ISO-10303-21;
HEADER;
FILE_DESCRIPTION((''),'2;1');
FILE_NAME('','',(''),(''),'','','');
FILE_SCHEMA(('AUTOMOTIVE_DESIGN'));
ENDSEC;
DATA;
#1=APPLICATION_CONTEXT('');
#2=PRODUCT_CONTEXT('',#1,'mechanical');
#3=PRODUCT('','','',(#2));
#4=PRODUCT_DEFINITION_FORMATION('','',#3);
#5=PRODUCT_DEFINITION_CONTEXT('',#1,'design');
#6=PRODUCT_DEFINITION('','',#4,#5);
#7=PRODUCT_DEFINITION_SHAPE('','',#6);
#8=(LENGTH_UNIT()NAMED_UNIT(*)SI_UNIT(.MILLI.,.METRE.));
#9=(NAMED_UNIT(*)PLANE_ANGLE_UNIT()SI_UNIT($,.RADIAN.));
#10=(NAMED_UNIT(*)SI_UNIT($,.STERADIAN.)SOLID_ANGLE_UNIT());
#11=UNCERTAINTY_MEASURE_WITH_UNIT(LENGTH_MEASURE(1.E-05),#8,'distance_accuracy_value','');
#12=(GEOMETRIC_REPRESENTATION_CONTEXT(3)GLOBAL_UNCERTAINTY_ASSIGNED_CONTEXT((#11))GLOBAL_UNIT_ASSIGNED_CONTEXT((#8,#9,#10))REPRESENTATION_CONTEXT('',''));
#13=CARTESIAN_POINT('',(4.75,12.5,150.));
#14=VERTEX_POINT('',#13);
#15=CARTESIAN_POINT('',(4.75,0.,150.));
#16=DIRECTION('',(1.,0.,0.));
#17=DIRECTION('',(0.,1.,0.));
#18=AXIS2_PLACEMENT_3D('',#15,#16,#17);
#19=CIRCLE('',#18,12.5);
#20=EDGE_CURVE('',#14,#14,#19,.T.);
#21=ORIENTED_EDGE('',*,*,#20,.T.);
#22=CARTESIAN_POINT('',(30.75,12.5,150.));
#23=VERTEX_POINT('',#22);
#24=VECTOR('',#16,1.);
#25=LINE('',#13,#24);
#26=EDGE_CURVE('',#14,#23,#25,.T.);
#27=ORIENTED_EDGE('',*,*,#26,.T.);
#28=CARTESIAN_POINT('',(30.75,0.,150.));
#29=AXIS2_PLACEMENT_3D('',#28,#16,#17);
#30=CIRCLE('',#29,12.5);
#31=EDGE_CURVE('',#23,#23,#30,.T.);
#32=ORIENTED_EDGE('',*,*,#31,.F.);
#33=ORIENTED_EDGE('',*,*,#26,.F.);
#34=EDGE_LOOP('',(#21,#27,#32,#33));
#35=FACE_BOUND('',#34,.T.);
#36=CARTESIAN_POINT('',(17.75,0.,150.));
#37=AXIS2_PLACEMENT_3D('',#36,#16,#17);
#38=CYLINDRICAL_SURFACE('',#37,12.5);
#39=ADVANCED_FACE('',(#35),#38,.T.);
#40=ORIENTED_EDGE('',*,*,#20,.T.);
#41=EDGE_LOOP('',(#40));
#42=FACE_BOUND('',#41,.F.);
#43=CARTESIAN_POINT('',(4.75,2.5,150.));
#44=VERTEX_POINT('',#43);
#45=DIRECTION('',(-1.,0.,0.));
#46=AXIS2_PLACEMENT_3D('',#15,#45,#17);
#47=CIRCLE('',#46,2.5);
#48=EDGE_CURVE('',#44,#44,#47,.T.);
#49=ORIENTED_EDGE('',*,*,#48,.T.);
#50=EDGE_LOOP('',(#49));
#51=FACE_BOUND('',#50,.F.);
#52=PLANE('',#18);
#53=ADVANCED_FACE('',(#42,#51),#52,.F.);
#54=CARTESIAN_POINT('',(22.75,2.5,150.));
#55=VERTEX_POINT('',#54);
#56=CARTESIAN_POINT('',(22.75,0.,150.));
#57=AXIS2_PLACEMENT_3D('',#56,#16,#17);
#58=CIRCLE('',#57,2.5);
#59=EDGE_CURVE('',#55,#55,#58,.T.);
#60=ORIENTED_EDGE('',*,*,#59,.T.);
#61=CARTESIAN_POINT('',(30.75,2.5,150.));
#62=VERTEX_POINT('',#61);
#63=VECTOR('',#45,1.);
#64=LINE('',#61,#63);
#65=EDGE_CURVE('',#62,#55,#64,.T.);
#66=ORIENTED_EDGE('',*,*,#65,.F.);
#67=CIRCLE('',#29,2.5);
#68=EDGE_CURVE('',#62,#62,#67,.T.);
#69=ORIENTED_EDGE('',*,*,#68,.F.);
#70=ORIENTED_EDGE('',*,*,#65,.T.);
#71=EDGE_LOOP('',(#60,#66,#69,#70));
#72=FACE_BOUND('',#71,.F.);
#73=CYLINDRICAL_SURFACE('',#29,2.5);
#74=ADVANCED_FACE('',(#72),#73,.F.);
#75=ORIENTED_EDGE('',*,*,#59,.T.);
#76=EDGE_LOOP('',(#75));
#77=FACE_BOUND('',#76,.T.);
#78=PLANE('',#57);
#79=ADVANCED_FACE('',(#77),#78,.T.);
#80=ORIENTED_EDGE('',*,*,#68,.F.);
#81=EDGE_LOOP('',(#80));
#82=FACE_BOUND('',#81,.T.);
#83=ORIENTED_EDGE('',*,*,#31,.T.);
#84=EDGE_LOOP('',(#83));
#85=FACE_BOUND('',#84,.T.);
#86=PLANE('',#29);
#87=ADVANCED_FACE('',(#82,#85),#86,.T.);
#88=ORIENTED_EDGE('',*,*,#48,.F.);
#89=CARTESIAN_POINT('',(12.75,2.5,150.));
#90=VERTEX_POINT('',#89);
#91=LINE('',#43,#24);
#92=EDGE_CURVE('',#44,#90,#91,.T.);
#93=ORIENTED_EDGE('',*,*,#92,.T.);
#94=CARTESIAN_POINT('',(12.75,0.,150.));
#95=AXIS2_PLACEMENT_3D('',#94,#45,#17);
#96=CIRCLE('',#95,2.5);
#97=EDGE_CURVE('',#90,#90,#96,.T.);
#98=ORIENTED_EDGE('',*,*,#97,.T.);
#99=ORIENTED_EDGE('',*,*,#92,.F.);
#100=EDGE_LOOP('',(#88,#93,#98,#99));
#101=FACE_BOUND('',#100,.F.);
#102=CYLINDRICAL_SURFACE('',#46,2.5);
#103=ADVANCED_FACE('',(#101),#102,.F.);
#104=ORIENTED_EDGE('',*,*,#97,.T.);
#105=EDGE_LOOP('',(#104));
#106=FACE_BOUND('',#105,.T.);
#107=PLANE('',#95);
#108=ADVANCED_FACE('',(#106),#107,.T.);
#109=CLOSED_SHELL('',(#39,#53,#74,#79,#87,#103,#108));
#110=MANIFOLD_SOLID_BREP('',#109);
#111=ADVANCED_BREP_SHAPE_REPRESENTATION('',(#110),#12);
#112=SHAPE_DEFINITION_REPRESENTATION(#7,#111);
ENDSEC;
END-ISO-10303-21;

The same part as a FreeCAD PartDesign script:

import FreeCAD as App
import Part
import Sketcher

V = App.Vector

doc = App.newDocument("Part")
body = doc.addObject("PartDesign::Body", "Body")

sketch1 = body.newObject("Sketcher::SketchObject", "Sketch")
sketch1.AttachmentSupport = (doc.getObject("XZ_Plane"), [""])
sketch1.MapMode = "FlatFace"
sketch1.addGeometry(Part.Circle(V(0, 0, 0), V(0, 0, 1), 12), False)
sketch1.addConstraint(Sketcher.Constraint("Coincident", 0, 3, -1, 1))
sketch1.addConstraint(Sketcher.Constraint("Diameter", 0, 25.0))
pad1 = body.newObject("PartDesign::Pad", "Pad")
pad1.Profile = sketch1
pad1.Length = 26
pad1.Midplane = True

sketch2 = body.newObject("Sketcher::SketchObject", "Sketch001")
sketch2.AttachmentSupport = (doc.getObject("XZ_Plane"), [""])
sketch2.MapMode = "FlatFace"
sketch2.AttachmentOffset = App.Placement(V(0, 0, 13), App.Rotation())
sketch2.addGeometry(Part.Circle(V(0, 0, 0), V(0, 0, 1), 2.5), False)
sketch2.addConstraint(Sketcher.Constraint("Coincident", 0, 3, -1, 1))
sketch2.addConstraint(Sketcher.Constraint("Diameter", 0, 5.0))
pocket1 = body.newObject("PartDesign::Pocket", "Pocket")
pocket1.Profile = sketch2
pocket1.Length = 8

sketch3 = body.newObject("Sketcher::SketchObject", "Sketch002")
sketch3.AttachmentSupport = (doc.getObject("XZ_Plane"), [""])
sketch3.MapMode = "FlatFace"
sketch3.AttachmentOffset = App.Placement(V(0, 0, -13), App.Rotation())
sketch3.addGeometry(Part.Circle(V(0, 0, 0), V(0, 0, 1), 2.5), False)
sketch3.addConstraint(Sketcher.Constraint("Coincident", 0, 3, -1, 1))
sketch3.addConstraint(Sketcher.Constraint("Diameter", 0, 5.0))
pocket2 = body.newObject("PartDesign::Pocket", "Pocket001")
pocket2.Profile = sketch3
pocket2.Length = 8
pocket2.Reversed = True
body2 = doc.addObject("PartDesign::Body", "Body001")
doc.recompute()

body.Placement = App.Placement(V(17.75, 0, 150), App.Rotation(V(0, 0, 1), 90))
boolean = body2.newObject("PartDesign::Boolean", "Boolean")
boolean.Type = "Fuse"
boolean.addObjects([body])

doc.recompute()
